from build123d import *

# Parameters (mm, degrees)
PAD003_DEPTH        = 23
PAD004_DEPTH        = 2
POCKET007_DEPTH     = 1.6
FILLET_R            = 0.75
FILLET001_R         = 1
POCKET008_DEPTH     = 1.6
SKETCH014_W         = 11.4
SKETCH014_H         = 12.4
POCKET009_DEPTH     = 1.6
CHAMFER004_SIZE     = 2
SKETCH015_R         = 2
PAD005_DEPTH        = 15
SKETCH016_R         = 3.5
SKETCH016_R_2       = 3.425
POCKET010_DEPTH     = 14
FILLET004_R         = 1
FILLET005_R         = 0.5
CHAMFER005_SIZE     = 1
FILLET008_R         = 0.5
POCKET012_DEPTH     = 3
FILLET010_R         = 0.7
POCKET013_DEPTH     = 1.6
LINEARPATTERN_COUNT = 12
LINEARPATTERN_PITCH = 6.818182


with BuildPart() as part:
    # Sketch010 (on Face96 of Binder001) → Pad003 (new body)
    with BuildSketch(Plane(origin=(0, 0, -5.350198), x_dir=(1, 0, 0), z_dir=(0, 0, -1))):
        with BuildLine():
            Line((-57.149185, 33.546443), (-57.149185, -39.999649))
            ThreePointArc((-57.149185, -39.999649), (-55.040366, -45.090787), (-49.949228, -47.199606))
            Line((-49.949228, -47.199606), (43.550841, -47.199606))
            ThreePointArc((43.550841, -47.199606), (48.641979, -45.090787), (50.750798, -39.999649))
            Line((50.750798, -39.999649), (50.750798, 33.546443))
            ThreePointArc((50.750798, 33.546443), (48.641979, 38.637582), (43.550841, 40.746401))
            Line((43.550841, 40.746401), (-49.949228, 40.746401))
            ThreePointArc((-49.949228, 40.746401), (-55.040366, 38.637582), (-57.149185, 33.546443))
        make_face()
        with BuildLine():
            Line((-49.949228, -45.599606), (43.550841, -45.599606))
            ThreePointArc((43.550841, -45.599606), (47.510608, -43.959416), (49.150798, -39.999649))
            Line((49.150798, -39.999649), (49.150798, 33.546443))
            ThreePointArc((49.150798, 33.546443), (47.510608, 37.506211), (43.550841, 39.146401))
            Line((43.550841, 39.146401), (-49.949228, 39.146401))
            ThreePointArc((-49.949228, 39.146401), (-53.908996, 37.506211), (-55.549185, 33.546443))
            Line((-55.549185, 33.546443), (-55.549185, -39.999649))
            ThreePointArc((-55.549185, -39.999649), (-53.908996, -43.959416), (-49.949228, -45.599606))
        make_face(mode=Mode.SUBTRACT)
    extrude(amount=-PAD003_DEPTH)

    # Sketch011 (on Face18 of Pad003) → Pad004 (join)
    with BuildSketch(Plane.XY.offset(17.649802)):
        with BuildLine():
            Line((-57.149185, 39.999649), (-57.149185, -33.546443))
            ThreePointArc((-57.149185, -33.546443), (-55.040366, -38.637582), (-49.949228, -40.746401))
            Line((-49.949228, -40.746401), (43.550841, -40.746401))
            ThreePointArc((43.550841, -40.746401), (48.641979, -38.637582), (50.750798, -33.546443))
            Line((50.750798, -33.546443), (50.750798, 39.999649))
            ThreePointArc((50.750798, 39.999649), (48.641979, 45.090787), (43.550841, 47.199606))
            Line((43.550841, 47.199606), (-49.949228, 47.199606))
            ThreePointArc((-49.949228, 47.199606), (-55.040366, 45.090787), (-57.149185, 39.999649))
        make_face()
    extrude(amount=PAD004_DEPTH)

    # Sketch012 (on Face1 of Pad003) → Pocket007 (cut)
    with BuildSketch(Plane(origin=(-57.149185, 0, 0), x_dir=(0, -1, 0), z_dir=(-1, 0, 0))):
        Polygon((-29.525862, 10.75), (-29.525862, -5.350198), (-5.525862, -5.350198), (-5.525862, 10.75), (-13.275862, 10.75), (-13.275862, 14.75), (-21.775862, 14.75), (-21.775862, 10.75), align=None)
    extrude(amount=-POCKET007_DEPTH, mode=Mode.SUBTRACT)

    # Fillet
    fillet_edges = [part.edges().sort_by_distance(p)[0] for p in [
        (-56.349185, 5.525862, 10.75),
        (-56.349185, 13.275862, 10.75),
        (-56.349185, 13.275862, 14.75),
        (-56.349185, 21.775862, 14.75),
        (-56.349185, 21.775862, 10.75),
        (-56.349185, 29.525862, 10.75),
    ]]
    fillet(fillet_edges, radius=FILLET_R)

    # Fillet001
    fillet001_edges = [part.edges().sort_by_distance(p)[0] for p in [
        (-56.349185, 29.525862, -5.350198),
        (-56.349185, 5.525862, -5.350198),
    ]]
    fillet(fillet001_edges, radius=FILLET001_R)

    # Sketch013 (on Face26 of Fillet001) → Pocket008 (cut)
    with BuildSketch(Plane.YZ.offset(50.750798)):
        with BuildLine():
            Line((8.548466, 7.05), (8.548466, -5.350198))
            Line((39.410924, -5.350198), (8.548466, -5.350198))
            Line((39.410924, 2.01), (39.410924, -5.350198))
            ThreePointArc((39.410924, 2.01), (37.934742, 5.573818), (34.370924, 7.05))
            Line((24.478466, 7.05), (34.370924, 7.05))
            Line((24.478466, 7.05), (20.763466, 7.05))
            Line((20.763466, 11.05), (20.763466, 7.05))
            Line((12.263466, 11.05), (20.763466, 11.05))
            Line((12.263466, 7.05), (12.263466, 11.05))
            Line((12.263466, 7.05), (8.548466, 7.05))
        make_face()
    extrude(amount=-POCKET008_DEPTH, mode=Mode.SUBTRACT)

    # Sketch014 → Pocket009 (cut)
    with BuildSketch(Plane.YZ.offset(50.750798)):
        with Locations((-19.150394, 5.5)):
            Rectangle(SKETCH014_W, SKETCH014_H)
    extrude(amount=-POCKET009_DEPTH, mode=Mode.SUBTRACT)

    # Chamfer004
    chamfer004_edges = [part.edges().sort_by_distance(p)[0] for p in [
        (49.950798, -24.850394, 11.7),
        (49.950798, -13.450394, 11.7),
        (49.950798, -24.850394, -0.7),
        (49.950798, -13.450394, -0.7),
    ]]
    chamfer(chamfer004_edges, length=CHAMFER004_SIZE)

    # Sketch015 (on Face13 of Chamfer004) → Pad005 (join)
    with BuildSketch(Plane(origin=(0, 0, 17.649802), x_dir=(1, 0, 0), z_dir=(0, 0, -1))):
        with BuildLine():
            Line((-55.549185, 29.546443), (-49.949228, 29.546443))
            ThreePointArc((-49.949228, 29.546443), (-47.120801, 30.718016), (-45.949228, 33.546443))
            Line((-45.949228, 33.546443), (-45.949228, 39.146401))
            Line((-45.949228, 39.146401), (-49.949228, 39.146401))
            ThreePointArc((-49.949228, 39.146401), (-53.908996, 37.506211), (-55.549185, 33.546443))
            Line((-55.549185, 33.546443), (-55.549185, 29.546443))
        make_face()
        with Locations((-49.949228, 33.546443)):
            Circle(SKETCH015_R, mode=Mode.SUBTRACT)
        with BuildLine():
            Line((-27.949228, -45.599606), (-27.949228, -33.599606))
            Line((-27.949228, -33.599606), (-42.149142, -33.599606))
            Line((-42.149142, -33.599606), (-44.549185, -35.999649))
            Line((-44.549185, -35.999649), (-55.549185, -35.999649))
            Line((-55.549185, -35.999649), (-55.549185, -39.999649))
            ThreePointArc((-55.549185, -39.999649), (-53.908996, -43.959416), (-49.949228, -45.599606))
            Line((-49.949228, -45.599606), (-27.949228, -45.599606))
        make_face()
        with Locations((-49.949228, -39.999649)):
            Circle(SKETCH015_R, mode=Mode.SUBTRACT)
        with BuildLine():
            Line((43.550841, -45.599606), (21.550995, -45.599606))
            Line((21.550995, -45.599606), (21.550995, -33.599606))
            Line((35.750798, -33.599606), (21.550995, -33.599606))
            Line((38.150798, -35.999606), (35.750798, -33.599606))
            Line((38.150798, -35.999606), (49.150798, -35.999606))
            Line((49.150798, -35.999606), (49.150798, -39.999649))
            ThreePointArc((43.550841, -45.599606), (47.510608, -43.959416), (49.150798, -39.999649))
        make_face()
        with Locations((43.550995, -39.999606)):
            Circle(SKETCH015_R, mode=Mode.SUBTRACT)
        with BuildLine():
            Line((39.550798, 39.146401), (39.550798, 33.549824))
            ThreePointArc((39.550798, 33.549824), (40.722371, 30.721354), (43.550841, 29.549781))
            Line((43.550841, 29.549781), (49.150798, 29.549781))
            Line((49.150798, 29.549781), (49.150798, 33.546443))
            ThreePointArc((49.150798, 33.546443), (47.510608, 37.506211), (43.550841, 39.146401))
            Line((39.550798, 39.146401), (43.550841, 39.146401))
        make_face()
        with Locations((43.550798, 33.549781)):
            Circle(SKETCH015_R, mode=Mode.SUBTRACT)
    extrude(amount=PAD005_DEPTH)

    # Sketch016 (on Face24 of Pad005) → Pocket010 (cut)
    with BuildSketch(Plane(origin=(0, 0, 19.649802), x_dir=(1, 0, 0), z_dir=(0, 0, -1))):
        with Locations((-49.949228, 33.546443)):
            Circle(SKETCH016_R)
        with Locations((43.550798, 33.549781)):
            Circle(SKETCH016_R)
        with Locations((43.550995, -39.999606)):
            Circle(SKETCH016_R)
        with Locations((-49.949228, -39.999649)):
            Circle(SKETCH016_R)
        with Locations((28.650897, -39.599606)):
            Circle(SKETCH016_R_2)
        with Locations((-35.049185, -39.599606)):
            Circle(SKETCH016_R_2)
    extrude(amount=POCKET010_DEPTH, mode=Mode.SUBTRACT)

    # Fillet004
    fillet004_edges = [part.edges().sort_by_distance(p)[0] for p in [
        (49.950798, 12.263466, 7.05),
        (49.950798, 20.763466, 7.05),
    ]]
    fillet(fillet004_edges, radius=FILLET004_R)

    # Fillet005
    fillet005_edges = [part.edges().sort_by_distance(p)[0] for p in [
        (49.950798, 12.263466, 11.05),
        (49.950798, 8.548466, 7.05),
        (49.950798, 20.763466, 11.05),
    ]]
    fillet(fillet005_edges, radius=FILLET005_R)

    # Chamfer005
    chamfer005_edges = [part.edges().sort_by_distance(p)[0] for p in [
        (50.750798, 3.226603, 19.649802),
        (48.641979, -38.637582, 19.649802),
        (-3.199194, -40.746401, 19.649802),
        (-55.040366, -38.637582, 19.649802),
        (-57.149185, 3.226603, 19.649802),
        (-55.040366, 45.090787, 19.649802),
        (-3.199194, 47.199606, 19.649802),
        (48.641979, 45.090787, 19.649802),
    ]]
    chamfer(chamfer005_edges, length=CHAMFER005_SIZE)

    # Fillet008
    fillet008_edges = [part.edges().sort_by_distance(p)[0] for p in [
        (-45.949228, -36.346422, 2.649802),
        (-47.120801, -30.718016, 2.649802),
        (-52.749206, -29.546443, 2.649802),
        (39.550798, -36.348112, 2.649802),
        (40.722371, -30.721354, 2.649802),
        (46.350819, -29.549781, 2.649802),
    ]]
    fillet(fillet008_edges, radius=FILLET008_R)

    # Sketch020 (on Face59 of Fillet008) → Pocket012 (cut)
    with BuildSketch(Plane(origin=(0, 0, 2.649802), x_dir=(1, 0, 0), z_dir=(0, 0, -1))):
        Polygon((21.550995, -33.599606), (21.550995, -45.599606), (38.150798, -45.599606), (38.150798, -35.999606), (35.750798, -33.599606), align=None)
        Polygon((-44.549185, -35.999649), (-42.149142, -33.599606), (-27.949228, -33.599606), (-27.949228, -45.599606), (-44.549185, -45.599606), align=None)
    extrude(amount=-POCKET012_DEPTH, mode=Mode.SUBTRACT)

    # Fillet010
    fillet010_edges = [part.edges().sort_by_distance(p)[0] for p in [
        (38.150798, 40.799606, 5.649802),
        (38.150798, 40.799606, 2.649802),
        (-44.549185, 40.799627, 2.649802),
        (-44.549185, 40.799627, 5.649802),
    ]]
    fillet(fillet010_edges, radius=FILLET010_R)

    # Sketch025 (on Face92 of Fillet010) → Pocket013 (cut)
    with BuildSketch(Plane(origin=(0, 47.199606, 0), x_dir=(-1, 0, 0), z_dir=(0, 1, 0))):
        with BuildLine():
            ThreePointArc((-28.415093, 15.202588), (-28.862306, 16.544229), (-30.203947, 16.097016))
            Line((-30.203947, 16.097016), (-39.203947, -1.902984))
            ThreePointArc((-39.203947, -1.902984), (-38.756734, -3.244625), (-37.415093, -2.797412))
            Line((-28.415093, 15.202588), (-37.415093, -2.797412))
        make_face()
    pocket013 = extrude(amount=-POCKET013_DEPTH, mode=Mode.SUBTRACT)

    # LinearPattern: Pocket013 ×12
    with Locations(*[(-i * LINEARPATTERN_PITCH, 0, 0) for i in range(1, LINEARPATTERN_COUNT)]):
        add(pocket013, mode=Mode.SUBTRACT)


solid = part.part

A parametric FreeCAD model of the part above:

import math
import FreeCAD as App
import Part
import Sketcher
from FreeCAD import Vector
Q = App.Units.Quantity


def edges_at(feature, points):
    """Names of the edges that pass closest to the given points."""
    edges = feature.Shape.Edges
    near = lambda p: min(range(len(edges)), key=lambda i: edges[i].distToShape(Part.Vertex(*p))[0])
    return sorted({f"Edge{near(p) + 1}" for p in points})


def add_polygon(sketch, points):
    """Adds a closed chain of lines whose ends are joined by coincident constraints."""
    first, n = sketch.GeometryCount, len(points)
    for a, b in zip(points, points[1:] + points[:1]):
        sketch.addGeometry(Part.LineSegment(App.Vector(*a, 0), App.Vector(*b, 0)), False)
    for i in range(n):
        sketch.addConstraint(Sketcher.Constraint("Coincident", first + i, 2, first + (i + 1) % n, 1))

doc = App.newDocument("Part")
body = doc.addObject("PartDesign::Body", "Body")

# Sketch on XY plane
sketch1 = doc.addObject("Sketcher::SketchObject", "Sketch")
body.addObject(sketch1)
sketch1.AttachmentSupport = (doc.XY_Plane, [""])
sketch1.MapMode = "FlatFace"
sketch1.AttachmentOffset = App.Placement(Vector(0, 0, -5.350198), App.Rotation())
sketch1.addGeometry([
    Part.LineSegment(Vector(-57.149185, -33.546443, 0), Vector(-57.149185, 39.999649, 0)),  # 0
    Part.ArcOfCircle(Part.Circle(Vector(-49.949227, 39.999648, 0), Vector(0, 0, 1), 7.199958), math.radians(90.000011), math.radians(179.999989)),  # 1
    Part.LineSegment(Vector(-49.949228, 47.199606, 0), Vector(43.550841, 47.199606, 0)),  # 2
    Part.ArcOfCircle(Part.Circle(Vector(43.55084, 39.999648, 0), Vector(0, 0, 1), 7.199958), math.radians(0.000011), math.radians(89.999989)),  # 3
    Part.LineSegment(Vector(50.750798, 39.999649, 0), Vector(50.750798, -33.546443, 0)),  # 4
    Part.ArcOfCircle(Part.Circle(Vector(43.55084, -33.546443, 0), Vector(0, 0, 1), 7.199958), math.radians(-89.999989), math.radians(-0.000003)),  # 5
    Part.LineSegment(Vector(43.550841, -40.746401, 0), Vector(-49.949228, -40.746401, 0)),  # 6
    Part.ArcOfCircle(Part.Circle(Vector(-49.949227, -33.546443, 0), Vector(0, 0, 1), 7.199958), math.radians(-179.999997), math.radians(-90.000011)),  # 7
    Part.LineSegment(Vector(43.550841, 45.599606, 0), Vector(-49.949228, 45.599606, 0)),  # 8
    Part.ArcOfCircle(Part.Circle(Vector(-49.949228, 39.999649, 0), Vector(0, 0, 1), 5.599957), math.radians(90.000002), math.radians(179.999998)),  # 9
    Part.LineSegment(Vector(-55.549185, 39.999649, 0), Vector(-55.549185, -33.546443, 0)),  # 10
    Part.ArcOfCircle(Part.Circle(Vector(-49.949228, -33.546444, 0), Vector(0, 0, 1), 5.599957), math.radians(179.999992), math.radians(269.999998)),  # 11
    Part.LineSegment(Vector(-49.949228, -39.146401, 0), Vector(43.550841, -39.146401, 0)),  # 12
    Part.ArcOfCircle(Part.Circle(Vector(43.550839, -33.546442, 0), Vector(0, 0, 1), 5.599959), math.radians(-89.99998), math.radians(-0.00001)),  # 13
    Part.LineSegment(Vector(49.150798, -33.546443, 0), Vector(49.150798, 39.999649, 0)),  # 14
    Part.ArcOfCircle(Part.Circle(Vector(43.550839, 39.999647, 0), Vector(0, 0, 1), 5.599959), math.radians(0.00002), math.radians(89.99998)),  # 15
], False)
sketch1.addConstraint([
    Sketcher.Constraint("Tangent", 0, 2, 1, 2),
    Sketcher.Constraint("Tangent", 1, 1, 2, 1),
    Sketcher.Constraint("Tangent", 2, 2, 3, 2),
    Sketcher.Constraint("Tangent", 3, 1, 4, 1),
    Sketcher.Constraint("Tangent", 4, 2, 5, 2),
    Sketcher.Constraint("Tangent", 5, 1, 6, 1),
    Sketcher.Constraint("Tangent", 6, 2, 7, 2),
    Sketcher.Constraint("Tangent", 7, 1, 0, 1),
    Sketcher.Constraint("Tangent", 8, 2, 9, 1),
    Sketcher.Constraint("Tangent", 9, 2, 10, 1),
    Sketcher.Constraint("Tangent", 10, 2, 11, 1),
    Sketcher.Constraint("Tangent", 11, 2, 12, 1),
    Sketcher.Constraint("Tangent", 12, 2, 13, 1),
    Sketcher.Constraint("Tangent", 13, 2, 14, 1),
    Sketcher.Constraint("Tangent", 14, 2, 15, 1),
    Sketcher.Constraint("Tangent", 15, 2, 8, 1),
    Sketcher.Constraint("Vertical", 0),
    Sketcher.Constraint("Horizontal", 2),
    Sketcher.Constraint("Vertical", 4),
    Sketcher.Constraint("Horizontal", 6),
    Sketcher.Constraint("Horizontal", 8),
    Sketcher.Constraint("Vertical", 10),
    Sketcher.Constraint("Horizontal", 12),
    Sketcher.Constraint("Vertical", 14),
    Sketcher.Constraint("Coincident", 9, 3, 1, 3),
    Sketcher.Constraint("Coincident", 11, 3, 7, 3),
    Sketcher.Constraint("Coincident", 13, 3, 5, 3),
    Sketcher.Constraint("Equal", 1, 3),
    Sketcher.Constraint("Equal", 3, 5),
    Sketcher.Constraint("Equal", 5, 7),
    Sketcher.Constraint("Equal", 13, 15),
    Sketcher.Constraint("DistanceY", 8, 2, 1, 1, Q("1.6 mm")),
    Sketcher.Constraint("Radius", 1, Q("7.199958 mm")),
    Sketcher.Constraint("DistanceX", 2, 1, 2, 2, Q("93.500069 mm")),
    Sketcher.Constraint("DistanceY", 0, 1, 0, 2, Q("73.546092 mm")),
    Sketcher.Constraint("DistanceX", -1, 1, 4, 2, Q("50.750798 mm")),
    Sketcher.Constraint("DistanceY", 5, 1, -1, 1, Q("40.746401 mm")),
])
pad1 = doc.addObject("PartDesign::Pad", "Pad")
body.addObject(pad1)
pad1.Profile = sketch1
pad1.Length = 23

# Sketch on XY plane
sketch2 = doc.addObject("Sketcher::SketchObject", "Sketch001")
body.addObject(sketch2)
sketch2.AttachmentSupport = (doc.XY_Plane, [""])
sketch2.MapMode = "FlatFace"
sketch2.AttachmentOffset = App.Placement(Vector(0, 0, 17.649802), App.Rotation())
sketch2.addGeometry([
    Part.LineSegment(Vector(-57.149185, 39.999649, 0), Vector(-57.149185, -33.546443, 0)),  # 0
    Part.ArcOfCircle(Part.Circle(Vector(-49.949227, -33.546443, 0), Vector(0, 0, 1), 7.199958), math.radians(-179.999997), math.radians(-90.000011)),  # 1
    Part.LineSegment(Vector(-49.949228, -40.746401, 0), Vector(43.550841, -40.746401, 0)),  # 2
    Part.ArcOfCircle(Part.Circle(Vector(43.55084, -33.546443, 0), Vector(0, 0, 1), 7.199958), math.radians(-89.999989), math.radians(-0.000003)),  # 3
    Part.LineSegment(Vector(50.750798, -33.546443, 0), Vector(50.750798, 39.999649, 0)),  # 4
    Part.ArcOfCircle(Part.Circle(Vector(43.55084, 39.999648, 0), Vector(0, 0, 1), 7.199958), math.radians(0.000011), math.radians(89.999989)),  # 5
    Part.LineSegment(Vector(43.550841, 47.199606, 0), Vector(-49.949228, 47.199606, 0)),  # 6
    Part.ArcOfCircle(Part.Circle(Vector(-49.949227, 39.999648, 0), Vector(0, 0, 1), 7.199958), math.radians(90.000011), math.radians(179.999989)),  # 7
], False)
sketch2.addConstraint([
    Sketcher.Constraint("Tangent", 0, 2, 1, 1),
    Sketcher.Constraint("Tangent", 1, 2, 2, 1),
    Sketcher.Constraint("Tangent", 2, 2, 3, 1),
    Sketcher.Constraint("Tangent", 3, 2, 4, 1),
    Sketcher.Constraint("Tangent", 4, 2, 5, 1),
    Sketcher.Constraint("Tangent", 5, 2, 6, 1),
    Sketcher.Constraint("Tangent", 6, 2, 7, 1),
    Sketcher.Constraint("Tangent", 7, 2, 0, 1),
    Sketcher.Constraint("Vertical", 0),
    Sketcher.Constraint("Horizontal", 2),
    Sketcher.Constraint("Vertical", 4),
    Sketcher.Constraint("Horizontal", 6),
    Sketcher.Constraint("Equal", 1, 3),
    Sketcher.Constraint("Equal", 3, 5),
    Sketcher.Constraint("Equal", 5, 7),
    Sketcher.Constraint("Radius", 1, Q("7.199958 mm")),
    Sketcher.Constraint("DistanceX", 2, 1, 2, 2, Q("93.500069 mm")),
    Sketcher.Constraint("DistanceY", 0, 2, 0, 1, Q("73.546092 mm")),
    Sketcher.Constraint("DistanceY", 1, 2, -1, 1, Q("40.746401 mm")),
    Sketcher.Constraint("DistanceX", -1, 1, 4, 2, Q("50.750798 mm")),
])
pad2 = doc.addObject("PartDesign::Pad", "Pad001")
body.addObject(pad2)
pad2.Profile = sketch2
pad2.Length = 2

# Sketch on YZ plane
sketch3 = doc.addObject("Sketcher::SketchObject", "Sketch002")
body.addObject(sketch3)
sketch3.AttachmentSupport = (doc.YZ_Plane, [""])
sketch3.MapMode = "FlatFace"
sketch3.AttachmentOffset = App.Placement(Vector(0, 0, -57.149185), App.Rotation())
add_polygon(sketch3, [(29.525862, 10.75), (29.525862, -5.350198), (5.525862, -5.350198), (5.525862, 10.75), (13.275862, 10.75), (13.275862, 14.75), (21.775862, 14.75), (21.775862, 10.75)])  # lines 0-7
sketch3.addConstraint([
    Sketcher.Constraint("Vertical", 0),
    Sketcher.Constraint("Horizontal", 1),
    Sketcher.Constraint("Vertical", 2),
    Sketcher.Constraint("Horizontal", 3),
    Sketcher.Constraint("Vertical", 4),
    Sketcher.Constraint("Horizontal", 5),
    Sketcher.Constraint("Vertical", 6),
    Sketcher.Constraint("Horizontal", 7),
    Sketcher.Constraint("Horizontal", 3, 2, 6, 2),
    Sketcher.Constraint("Equal", 3, 7),
    Sketcher.Constraint("DistanceX", 1, 2, 1, 1, Q("24 mm")),
    Sketcher.Constraint("DistanceY", 4, 1, 4, 2, Q("4 mm")),
    Sketcher.Constraint("DistanceX", 5, 1, 5, 2, Q("8.5 mm")),
    Sketcher.Constraint("DistanceY", -1, 1, 2, 2, Q("10.75 mm")),
    Sketcher.Constraint("DistanceY", 0, 2, 0, 1, Q("16.100198 mm")),
    Sketcher.Constraint("DistanceX", -1, 1, 0, 2, Q("29.525862 mm")),
])
pocket1 = doc.addObject("PartDesign::Pocket", "Pocket")
body.addObject(pocket1)
pocket1.Profile = sketch3
pocket1.Length = 1.6
pocket1.Reversed = True
doc.recompute()

fillet = doc.addObject("PartDesign::Fillet", "Fillet")
body.addObject(fillet)
fillet.Base = (pocket1, edges_at(pocket1, [
    (-56.349, 5.526, 10.75),
    (-56.349, 13.276, 10.75),
    (-56.349, 13.276, 14.75),
    (-56.349, 21.776, 14.75),
    (-56.349, 21.776, 10.75),
    (-56.349, 29.526, 10.75),
]))
fillet.Radius = 0.75
doc.recompute()

fillet2 = doc.addObject("PartDesign::Fillet", "Fillet001")
body.addObject(fillet2)
fillet2.Base = (fillet, edges_at(fillet, [(-56.349, 29.526, -5.35), (-56.349, 5.526, -5.35)]))
fillet2.Radius = 1

# Sketch on YZ plane
sketch4 = doc.addObject("Sketcher::SketchObject", "Sketch003")
body.addObject(sketch4)
sketch4.AttachmentSupport = (doc.YZ_Plane, [""])
sketch4.MapMode = "FlatFace"
sketch4.AttachmentOffset = App.Placement(Vector(0, 0, 50.750798), App.Rotation())
sketch4.addGeometry([
    Part.LineSegment(Vector(8.548466, 7.05, 0), Vector(8.548466, -5.350198, 0)),  # 0
    Part.LineSegment(Vector(8.548466, -5.350198, 0), Vector(39.410924, -5.350198, 0)),  # 1
    Part.LineSegment(Vector(39.410924, -5.350198, 0), Vector(39.410924, 2.01, 0)),  # 2
    Part.ArcOfCircle(Part.Circle(Vector(34.370923, 2.009999, 0), Vector(0, 0, 1), 5.040001), math.radians(0.000007), math.radians(89.999993)),  # 3
    Part.LineSegment(Vector(34.370924, 7.05, 0), Vector(20.763466, 7.05, 0)),  # 4
    Part.LineSegment(Vector(20.763466, 7.05, 0), Vector(20.763466, 11.05, 0)),  # 5
    Part.LineSegment(Vector(20.763466, 11.05, 0), Vector(12.263466, 11.05, 0)),  # 6
    Part.LineSegment(Vector(12.263466, 11.05, 0), Vector(12.263466, 7.05, 0)),  # 7
    Part.LineSegment(Vector(12.263466, 7.05, 0), Vector(8.548466, 7.05, 0)),  # 8
], False)
sketch4.addConstraint([
    Sketcher.Constraint("Coincident", 0, 2, 1, 1),
    Sketcher.Constraint("Coincident", 1, 2, 2, 1),
    Sketcher.Constraint("Tangent", 2, 2, 3, 1),
    Sketcher.Constraint("Tangent", 3, 2, 4, 1),
    Sketcher.Constraint("Coincident", 4, 2, 5, 1),
    Sketcher.Constraint("Coincident", 5, 2, 6, 1),
    Sketcher.Constraint("Coincident", 6, 2, 7, 1),
    Sketcher.Constraint("Coincident", 7, 2, 8, 1),
    Sketcher.Constraint("Coincident", 8, 2, 0, 1),
    Sketcher.Constraint("Vertical", 0),
    Sketcher.Constraint("Horizontal", 1),
    Sketcher.Constraint("Vertical", 2),
    Sketcher.Constraint("Horizontal", 4),
    Sketcher.Constraint("Vertical", 5),
    Sketcher.Constraint("Horizontal", 6),
    Sketcher.Constraint("Vertical", 7),
    Sketcher.Constraint("Horizontal", 8),
    Sketcher.Constraint("Horizontal", 4, 2, 7, 2),
    Sketcher.Constraint("DistanceY", 5, 1, 5, 2, Q("4 mm")),
    Sketcher.Constraint("Radius", 3, Q("5.040001 mm")),
    Sketcher.Constraint("DistanceX", 6, 2, 6, 1, Q("8.5 mm")),
    Sketcher.Constraint("DistanceX", 8, 2, 8, 1, Q("3.715 mm")),
    Sketcher.Constraint("DistanceY", -1, 1, 3, 3, Q("2.009999 mm")),
    Sketcher.Constraint("DistanceX", 1, 1, 1, 2, Q("30.862458 mm")),
    Sketcher.Constraint("DistanceY", 0, 2, 0, 1, Q("12.400198 mm")),
    Sketcher.Constraint("DistanceX", -1, 1, 3, 3, Q("34.370923 mm")),
])
pocket2 = doc.addObject("PartDesign::Pocket", "Pocket001")
body.addObject(pocket2)
pocket2.Profile = sketch4
pocket2.Length = 1.6

# Sketch on YZ plane
sketch5 = doc.addObject("Sketcher::SketchObject", "Sketch004")
body.addObject(sketch5)
sketch5.AttachmentSupport = (doc.YZ_Plane, [""])
sketch5.MapMode = "FlatFace"
sketch5.AttachmentOffset = App.Placement(Vector(0, 0, 50.750798), App.Rotation())
add_polygon(sketch5, [(-24.850394, 11.7), (-24.850394, -0.7), (-13.450394, -0.7), (-13.450394, 11.7)])  # lines 0-3
sketch5.addConstraint([
    Sketcher.Constraint("Vertical", 0),
    Sketcher.Constraint("Horizontal", 1),
    Sketcher.Constraint("Vertical", 2),
    Sketcher.Constraint("Horizontal", 3),
    Sketcher.Constraint("DistanceX", 1, 1, 1, 2, Q("11.4 mm")),
    Sketcher.Constraint("DistanceY", 0, 2, 0, 1, Q("12.4 mm")),
    Sketcher.Constraint("DistanceY", 0, 2, -1, 1, Q("0.7 mm")),
    Sketcher.Constraint("DistanceX", 0, 2, -1, 1, Q("24.850394 mm")),
])
pocket3 = doc.addObject("PartDesign::Pocket", "Pocket002")
body.addObject(pocket3)
pocket3.Profile = sketch5
pocket3.Length = 1.6
doc.recompute()

chamfer = doc.addObject("PartDesign::Chamfer", "Chamfer")
body.addObject(chamfer)
chamfer.Base = (pocket3, edges_at(pocket3, [
    (49.951, -24.85, 11.7),
    (49.951, -13.45, 11.7),
    (49.951, -24.85, -0.7),
    (49.951, -13.45, -0.7),
]))
chamfer.Size = 2

# Sketch on XY plane
sketch6 = doc.addObject("Sketcher::SketchObject", "Sketch005")
body.addObject(sketch6)
sketch6.AttachmentSupport = (doc.XY_Plane, [""])
sketch6.MapMode = "FlatFace"
sketch6.AttachmentOffset = App.Placement(Vector(0, 0, 17.649802), App.Rotation())
sketch6.addGeometry([
    Part.LineSegment(Vector(-55.549185, -29.546443, 0), Vector(-49.949228, -29.546443, 0)),  # 0
    Part.ArcOfCircle(Part.Circle(Vector(-49.949228, -33.546443, 0), Vector(0, 0, 1), 4), math.radians(0.000006), math.radians(89.999994)),  # 1
    Part.LineSegment(Vector(-45.949228, -33.546443, 0), Vector(-45.949228, -39.146401, 0)),  # 2
    Part.LineSegment(Vector(-45.949228, -39.146401, 0), Vector(-49.949228, -39.146401, 0)),  # 3
    Part.ArcOfCircle(Part.Circle(Vector(-49.949228, -33.546444, 0), Vector(0, 0, 1), 5.599957), math.radians(179.999992), math.radians(269.999998)),  # 4
    Part.LineSegment(Vector(-55.549185, -33.546443, 0), Vector(-55.549185, -29.546443, 0)),  # 5
    Part.Circle(Vector(-49.949228, -33.546443, 0), Vector(0, 0, 1), 2),  # 6
    Part.LineSegment(Vector(-27.949228, 45.599606, 0), Vector(-27.949228, 33.599606, 0)),  # 7
    Part.LineSegment(Vector(-27.949228, 33.599606, 0), Vector(-42.149142, 33.599606, 0)),  # 8
    Part.LineSegment(Vector(-42.149142, 33.599606, 0), Vector(-44.549185, 35.999649, 0)),  # 9
    Part.LineSegment(Vector(-44.549185, 35.999649, 0), Vector(-55.549185, 35.999649, 0)),  # 10
    Part.LineSegment(Vector(-55.549185, 35.999649, 0), Vector(-55.549185, 39.999649, 0)),  # 11
    Part.ArcOfCircle(Part.Circle(Vector(-49.949228, 39.999649, 0), Vector(0, 0, 1), 5.599957), math.radians(90.000002), math.radians(179.999998)),  # 12
    Part.LineSegment(Vector(-49.949228, 45.599606, 0), Vector(-27.949228, 45.599606, 0)),  # 13
    Part.Circle(Vector(-49.949228, 39.999649, 0), Vector(0, 0, 1), 2),  # 14
    Part.LineSegment(Vector(21.550995, 45.599606, 0), Vector(43.550841, 45.599606, 0)),  # 15
    Part.ArcOfCircle(Part.Circle(Vector(43.550839, 39.999647, 0), Vector(0, 0, 1), 5.599959), math.radians(0.00002), math.radians(89.99998)),  # 16
    Part.LineSegment(Vector(49.150798, 39.999649, 0), Vector(49.150798, 35.999606, 0)),  # 17
    Part.LineSegment(Vector(49.150798, 35.999606, 0), Vector(38.150798, 35.999606, 0)),  # 18
    Part.LineSegment(Vector(38.150798, 35.999606, 0), Vector(35.750798, 33.599606, 0)),  # 19
    Part.LineSegment(Vector(35.750798, 33.599606, 0), Vector(21.550995, 33.599606, 0)),  # 20
    Part.LineSegment(Vector(21.550995, 33.599606, 0), Vector(21.550995, 45.599606, 0)),  # 21
    Part.Circle(Vector(43.550995, 39.999606, 0), Vector(0, 0, 1), 2),  # 22
    Part.LineSegment(Vector(39.550798, -39.146401, 0), Vector(39.550798, -33.549824, 0)),  # 23
    Part.ArcOfCircle(Part.Circle(Vector(43.550798, -33.549781, 0), Vector(0, 0, 1), 4), math.radians(89.99939), math.radians(180.00061)),  # 24
    Part.LineSegment(Vector(43.550841, -29.549781, 0), Vector(49.150798, -29.549781, 0)),  # 25
    Part.LineSegment(Vector(49.150798, -29.549781, 0), Vector(49.150798, -33.546443, 0)),  # 26
    Part.ArcOfCircle(Part.Circle(Vector(43.550839, -33.546442, 0), Vector(0, 0, 1), 5.599959), math.radians(-89.99998), math.radians(-0.00001)),  # 27
    Part.LineSegment(Vector(43.550841, -39.146401, 0), Vector(39.550798, -39.146401, 0)),  # 28
    Part.Circle(Vector(43.550798, -33.549781, 0), Vector(0, 0, 1), 2),  # 29
], False)
sketch6.addConstraint([
    Sketcher.Constraint("Tangent", 0, 2, 1, 2),
    Sketcher.Constraint("Tangent", 1, 1, 2, 1),
    Sketcher.Constraint("Coincident", 2, 2, 3, 1),
    Sketcher.Constraint("Tangent", 3, 2, 4, 2),
    Sketcher.Constraint("Tangent", 4, 1, 5, 1),
    Sketcher.Constraint("Coincident", 5, 2, 0, 1),
    Sketcher.Constraint("Coincident", 7, 2, 8, 1),
    Sketcher.Constraint("Coincident", 8, 2, 9, 1),
    Sketcher.Constraint("Coincident", 9, 2, 10, 1),
    Sketcher.Constraint("Coincident", 10, 2, 11, 1),
    Sketcher.Constraint("Tangent", 11, 2, 12, 2),
    Sketcher.Constraint("Tangent", 12, 1, 13, 1),
    Sketcher.Constraint("Coincident", 13, 2, 7, 1),
    Sketcher.Constraint("Tangent", 15, 2, 16, 2),
    Sketcher.Constraint("Tangent", 16, 1, 17, 1),
    Sketcher.Constraint("Coincident", 17, 2, 18, 1),
    Sketcher.Constraint("Coincident", 18, 2, 19, 1),
    Sketcher.Constraint("Coincident", 19, 2, 20, 1),
    Sketcher.Constraint("Coincident", 20, 2, 21, 1),
    Sketcher.Constraint("Coincident", 21, 2, 15, 1),
    Sketcher.Constraint("Coincident", 23, 2, 24, 2),
    Sketcher.Constraint("Coincident", 24, 1, 25, 1),
    Sketcher.Constraint("Coincident", 25, 2, 26, 1),
    Sketcher.Constraint("Tangent", 26, 2, 27, 2),
    Sketcher.Constraint("Tangent", 27, 1, 28, 1),
    Sketcher.Constraint("Coincident", 28, 2, 23, 1),
    Sketcher.Constraint("Horizontal", 0),
    Sketcher.Constraint("Vertical", 2),
    Sketcher.Constraint("Horizontal", 3),
    Sketcher.Constraint("Vertical", 5),
    Sketcher.Constraint("Vertical", 7),
    Sketcher.Constraint("Horizontal", 8),
    Sketcher.Constraint("Horizontal", 10),
    Sketcher.Constraint("Vertical", 11),
    Sketcher.Constraint("Horizontal", 13),
    Sketcher.Constraint("Horizontal", 15),
    Sketcher.Constraint("Vertical", 17),
    Sketcher.Constraint("Horizontal", 18),
    Sketcher.Constraint("Horizontal", 20),
    Sketcher.Constraint("Vertical", 21),
    Sketcher.Constraint("Vertical", 23),
    Sketcher.Constraint("Horizontal", 25),
    Sketcher.Constraint("Vertical", 26),
    Sketcher.Constraint("Horizontal", 28),
    Sketcher.Constraint("Coincident", 4, 3, 1, 3),
    Sketcher.Constraint("Coincident", 6, 3, 1, 3),
    Sketcher.Constraint("Coincident", 14, 3, 12, 3),
    Sketcher.Constraint("Coincident", 29, 3, 24, 3),
    Sketcher.Constraint("Equal", 4, 12),
    Sketcher.Constraint("Equal", 6, 14),
    Sketcher.Constraint("Equal", 12, 16),
    Sketcher.Constraint("Equal", 14, 22),
    Sketcher.Constraint("Equal", 1, 24),
    Sketcher.Constraint("Equal", 16, 27),
    Sketcher.Constraint("Equal", 22, 29),
    Sketcher.Constraint("Perpendicular", 9, 19),
    Sketcher.Constraint("Horizontal", 14, 3, 16, 3),
    Sketcher.Constraint("Horizontal", 6, 3, 27, 3),
    Sketcher.Constraint("Horizontal", 8, 2, 19, 2),
    Sketcher.Constraint("Vertical", 6, 3, 12, 3),
    Sketcher.Constraint("Vertical", 16, 3, 27, 3),
    Sketcher.Constraint("Vertical", 15, 2, 24, 1),
    Sketcher.Constraint("Equal", 10, 18),
    Sketcher.Constraint("Equal", 5, 11),
    Sketcher.Constraint("Equal", 28, 17),
    Sketcher.Constraint("Diameter", 6, Q("4 mm")),
    Sketcher.Constraint("Radius", 1, Q("4 mm")),
    Sketcher.Constraint("DistanceX", 10, 2, 10, 1, Q("11 mm")),
    Sketcher.Constraint("DistanceX", 13, 1, 13, 2, Q("22 mm")),
    Sketcher.Constraint("DistanceY", 7, 2, 7, 1, Q("12 mm")),
    Sketcher.Constraint("Angle", 9, Q("135 deg")),
    Sketcher.Constraint("DistanceY", 17, 2, 22, 3, Q("4 mm")),
    Sketcher.Constraint("DistanceX", 20, 2, 22, 3, Q("22 mm")),
    Sketcher.Constraint("DistanceY", 22, 3, 15, 2, Q("5.6 mm")),
    Sketcher.Constraint("Radius", 16, Q("5.599959 mm")),
    Sketcher.Constraint("DistanceY", 26, 2, 26, 1, Q("3.996662 mm")),
    Sketcher.Constraint("DistanceX", -1, 1, 24, 3, Q("43.550798 mm")),
    Sketcher.Constraint("DistanceY", 2, 2, -1, 1, Q("39.146401 mm")),
    Sketcher.Constraint("DistanceX", 15, 1, 15, 2, Q("21.999846 mm")),
    Sketcher.Constraint("DistanceY", 23, 1, 23, 2, Q("5.596577 mm")),
    Sketcher.Constraint("DistanceX", 1, 3, -1, 1, Q("49.949228 mm")),
    Sketcher.Constraint("DistanceY", -1, 1, 12, 3, Q("39.999649 mm")),
])
pad3 = doc.addObject("PartDesign::Pad", "Pad002")
body.addObject(pad3)
pad3.Profile = sketch6
pad3.Length = 15
pad3.Reversed = True

# Sketch on XY plane
sketch7 = doc.addObject("Sketcher::SketchObject", "Sketch006")
body.addObject(sketch7)
sketch7.AttachmentSupport = (doc.XY_Plane, [""])
sketch7.MapMode = "FlatFace"
sketch7.AttachmentOffset = App.Placement(Vector(0, 0, 19.649802), App.Rotation())
sketch7.addGeometry([
    Part.Circle(Vector(-49.949228, -33.546443, 0), Vector(0, 0, 1), 3.5),  # 0
    Part.Circle(Vector(43.550798, -33.549781, 0), Vector(0, 0, 1), 3.5),  # 1
    Part.Circle(Vector(43.550995, 39.999606, 0), Vector(0, 0, 1), 3.5),  # 2
    Part.Circle(Vector(-49.949228, 39.999649, 0), Vector(0, 0, 1), 3.5),  # 3
    Part.Circle(Vector(28.650897, 39.599606, 0), Vector(0, 0, 1), 3.425),  # 4
    Part.Circle(Vector(-35.049185, 39.599606, 0), Vector(0, 0, 1), 3.425),  # 5
], False)
sketch7.addConstraint([
    Sketcher.Constraint("Equal", 0, 1),
    Sketcher.Constraint("Equal", 1, 2),
    Sketcher.Constraint("Equal", 2, 3),
    Sketcher.Constraint("Equal", 4, 5),
    Sketcher.Constraint("Horizontal", 4, 3, 5, 3),
    Sketcher.Constraint("Vertical", 0, 3, 3, 3),
    Sketcher.Constraint("Diameter", 0, Q("7 mm")),
    Sketcher.Constraint("Diameter", 4, Q("6.85 mm")),
    Sketcher.Constraint("DistanceY", 4, 3, 2, 3, Q("0.4 mm")),
    Sketcher.Constraint("DistanceX", 4, 3, 1, 3, Q("14.899901 mm")),
    Sketcher.Constraint("DistanceY", 1, 3, -1, 1, Q("33.549781 mm")),
    Sketcher.Constraint("DistanceY", -1, 1, 3, 3, Q("39.999649 mm")),
    Sketcher.Constraint("DistanceY", 1, 3, 0, 3, Q("0.003338 mm")),
    Sketcher.Constraint("DistanceY", 0, 3, 2, 3, Q("73.546049 mm")),
    Sketcher.Constraint("DistanceX", 5, 3, 2, 3, Q("78.60018 mm")),
    Sketcher.Constraint("DistanceX", 0, 3, -1, 1, Q("49.949228 mm")),
    Sketcher.Constraint("DistanceX", -1, 1, 1, 3, Q("43.550798 mm")),
    Sketcher.Constraint("DistanceX", -1, 1, 2, 3, Q("43.550995 mm")),
])
pocket4 = doc.addObject("PartDesign::Pocket", "Pocket003")
body.addObject(pocket4)
pocket4.Profile = sketch7
pocket4.Length = 14
doc.recompute()

fillet3 = doc.addObject("PartDesign::Fillet", "Fillet002")
body.addObject(fillet3)
fillet3.Base = (pocket4, edges_at(pocket4, [(49.951, 12.263, 7.05), (49.951, 20.763, 7.05)]))
fillet3.Radius = 1
doc.recompute()

fillet4 = doc.addObject("PartDesign::Fillet", "Fillet003")
body.addObject(fillet4)
fillet4.Base = (fillet3, edges_at(fillet3, [(49.951, 12.263, 11.05), (49.951, 8.548, 7.05), (49.951, 20.763, 11.05)]))
fillet4.Radius = 0.5
doc.recompute()

chamfer2 = doc.addObject("PartDesign::Chamfer", "Chamfer001")
body.addObject(chamfer2)
chamfer2.Base = (fillet4, edges_at(fillet4, [
    (50.751, 3.227, 19.65),
    (48.642, -38.638, 19.65),
    (-3.199, -40.746, 19.65),
    (-55.04, -38.638, 19.65),
    (-57.149, 3.227, 19.65),
    (-55.04, 45.091, 19.65),
    (-3.199, 47.2, 19.65),
    (48.642, 45.091, 19.65),
]))
chamfer2.Size = 1
doc.recompute()

fillet5 = doc.addObject("PartDesign::Fillet", "Fillet004")
body.addObject(fillet5)
fillet5.Base = (chamfer2, edges_at(chamfer2, [
    (-45.949, -36.346, 2.65),
    (-47.121, -30.718, 2.65),
    (-52.749, -29.546, 2.65),
    (39.551, -36.348, 2.65),
    (40.722, -30.721, 2.65),
    (46.351, -29.55, 2.65),
]))
fillet5.Radius = 0.5

# Sketch on XY plane
sketch8 = doc.addObject("Sketcher::SketchObject", "Sketch007")
body.addObject(sketch8)
sketch8.AttachmentSupport = (doc.XY_Plane, [""])
sketch8.MapMode = "FlatFace"
sketch8.AttachmentOffset = App.Placement(Vector(0, 0, 2.649802), App.Rotation())
add_polygon(sketch8, [(21.550995, 33.599606), (21.550995, 45.599606), (38.150798, 45.599606), (38.150798, 35.999606), (35.750798, 33.599606)])  # lines 0-4
add_polygon(sketch8, [(-42.149142, 33.599606), (-44.549185, 35.999649), (-44.549185, 45.599606), (-27.949228, 45.599606), (-27.949228, 33.599606)])  # lines 5-9
sketch8.addConstraint([
    Sketcher.Constraint("Vertical", 0),
    Sketcher.Constraint("Horizontal", 1),
    Sketcher.Constraint("Vertical", 2),
    Sketcher.Constraint("Horizontal", 4),
    Sketcher.Constraint("Vertical", 6),
    Sketcher.Constraint("Horizontal", 7),
    Sketcher.Constraint("Vertical", 8),
    Sketcher.Constraint("Horizontal", 9),
    Sketcher.Constraint("Perpendicular", 3, 5),
    Sketcher.Constraint("Horizontal", 1, 2, 6, 2),
    Sketcher.Constraint("Horizontal", 4, 2, 8, 2),
    Sketcher.Constraint("DistanceY", 0, 1, 0, 2, Q("12 mm")),
    Sketcher.Constraint("Angle", 3, Q("-135 deg")),
    Sketcher.Constraint("DistanceY", 2, 2, 2, 1, Q("9.6 mm")),
    Sketcher.Constraint("DistanceX", -1, 1, 1, 2, Q("38.150798 mm")),
    Sketcher.Constraint("DistanceX", 1, 1, 1, 2, Q("16.599803 mm")),
    Sketcher.Constraint("DistanceX", 7, 1, 7, 2, Q("16.599957 mm")),
    Sketcher.Constraint("DistanceX", 9, 2, 9, 1, Q("14.199914 mm")),
    Sketcher.Constraint("DistanceY", -1, 1, 5, 2, Q("35.999649 mm")),
    Sketcher.Constraint("DistanceX", 7, 2, -1, 1, Q("27.949228 mm")),
])
pocket5 = doc.addObject("PartDesign::Pocket", "Pocket004")
body.addObject(pocket5)
pocket5.Profile = sketch8
pocket5.Length = 3
pocket5.Reversed = True
doc.recompute()

fillet6 = doc.addObject("PartDesign::Fillet", "Fillet005")
body.addObject(fillet6)
fillet6.Base = (pocket5, edges_at(pocket5, [
    (38.151, 40.8, 5.65),
    (38.151, 40.8, 2.65),
    (-44.549, 40.8, 2.65),
    (-44.549, 40.8, 5.65),
]))
fillet6.Radius = 0.7

# Sketch on XZ plane
sketch9 = doc.addObject("Sketcher::SketchObject", "Sketch008")
body.addObject(sketch9)
sketch9.AttachmentSupport = (doc.XZ_Plane, [""])
sketch9.MapMode = "FlatFace"
sketch9.AttachmentOffset = App.Placement(Vector(0, 0, -47.199606), App.Rotation())
sketch9.addGeometry([
    Part.ArcOfCircle(Part.Circle(Vector(29.30952, 15.649802, 0), Vector(0, 0, 1), 1), math.radians(26.565077), math.radians(206.565077)),
    Part.LineSegment(Vector(30.203947, 16.097016, 0), Vector(39.203947, -1.902984, 0)),
    Part.ArcOfCircle(Part.Circle(Vector(38.30952, -2.350198, 0), Vector(0, 0, 1), 1), math.radians(-153.434923), math.radians(26.565077)),
    Part.LineSegment(Vector(37.415093, -2.797412, 0), Vector(28.415093, 15.202588, 0)),
], False)
sketch9.addConstraint([
    Sketcher.Constraint("Tangent", 0, 1, 1, 1),
    Sketcher.Constraint("Tangent", 1, 2, 2, 2),
    Sketcher.Constraint("Tangent", 2, 1, 3, 1),
    Sketcher.Constraint("Tangent", 3, 2, 0, 2),
    Sketcher.Constraint("Equal", 0, 2),
    Sketcher.Constraint("Radius", 0, Q("1 mm")),
    Sketcher.Constraint("DistanceX", 0, 3, 2, 3, Q("9 mm")),
    Sketcher.Constraint("DistanceY", 2, 3, 0, 3, Q("18 mm")),
    Sketcher.Constraint("DistanceY", -1, 1, 0, 3, Q("15.649802 mm")),
    Sketcher.Constraint("DistanceX", -1, 1, 0, 3, Q("29.30952 mm")),
])
pocket6 = doc.addObject("PartDesign::Pocket", "Pocket005")
body.addObject(pocket6)
pocket6.Profile = sketch9
pocket6.Length = 1.6
pocket6.Reversed = True
doc.recompute()

linearpattern = doc.addObject("PartDesign::LinearPattern", "LinearPattern")
body.addObject(linearpattern)
linearpattern.Originals = [pocket6]
linearpattern.Direction = (doc.X_Axis, [""])
linearpattern.Mode = "offset"
linearpattern.Offset = 6.818182
linearpattern.Occurrences = 12
linearpattern.Reversed = True
body.Tip = linearpattern

doc.recompute()
